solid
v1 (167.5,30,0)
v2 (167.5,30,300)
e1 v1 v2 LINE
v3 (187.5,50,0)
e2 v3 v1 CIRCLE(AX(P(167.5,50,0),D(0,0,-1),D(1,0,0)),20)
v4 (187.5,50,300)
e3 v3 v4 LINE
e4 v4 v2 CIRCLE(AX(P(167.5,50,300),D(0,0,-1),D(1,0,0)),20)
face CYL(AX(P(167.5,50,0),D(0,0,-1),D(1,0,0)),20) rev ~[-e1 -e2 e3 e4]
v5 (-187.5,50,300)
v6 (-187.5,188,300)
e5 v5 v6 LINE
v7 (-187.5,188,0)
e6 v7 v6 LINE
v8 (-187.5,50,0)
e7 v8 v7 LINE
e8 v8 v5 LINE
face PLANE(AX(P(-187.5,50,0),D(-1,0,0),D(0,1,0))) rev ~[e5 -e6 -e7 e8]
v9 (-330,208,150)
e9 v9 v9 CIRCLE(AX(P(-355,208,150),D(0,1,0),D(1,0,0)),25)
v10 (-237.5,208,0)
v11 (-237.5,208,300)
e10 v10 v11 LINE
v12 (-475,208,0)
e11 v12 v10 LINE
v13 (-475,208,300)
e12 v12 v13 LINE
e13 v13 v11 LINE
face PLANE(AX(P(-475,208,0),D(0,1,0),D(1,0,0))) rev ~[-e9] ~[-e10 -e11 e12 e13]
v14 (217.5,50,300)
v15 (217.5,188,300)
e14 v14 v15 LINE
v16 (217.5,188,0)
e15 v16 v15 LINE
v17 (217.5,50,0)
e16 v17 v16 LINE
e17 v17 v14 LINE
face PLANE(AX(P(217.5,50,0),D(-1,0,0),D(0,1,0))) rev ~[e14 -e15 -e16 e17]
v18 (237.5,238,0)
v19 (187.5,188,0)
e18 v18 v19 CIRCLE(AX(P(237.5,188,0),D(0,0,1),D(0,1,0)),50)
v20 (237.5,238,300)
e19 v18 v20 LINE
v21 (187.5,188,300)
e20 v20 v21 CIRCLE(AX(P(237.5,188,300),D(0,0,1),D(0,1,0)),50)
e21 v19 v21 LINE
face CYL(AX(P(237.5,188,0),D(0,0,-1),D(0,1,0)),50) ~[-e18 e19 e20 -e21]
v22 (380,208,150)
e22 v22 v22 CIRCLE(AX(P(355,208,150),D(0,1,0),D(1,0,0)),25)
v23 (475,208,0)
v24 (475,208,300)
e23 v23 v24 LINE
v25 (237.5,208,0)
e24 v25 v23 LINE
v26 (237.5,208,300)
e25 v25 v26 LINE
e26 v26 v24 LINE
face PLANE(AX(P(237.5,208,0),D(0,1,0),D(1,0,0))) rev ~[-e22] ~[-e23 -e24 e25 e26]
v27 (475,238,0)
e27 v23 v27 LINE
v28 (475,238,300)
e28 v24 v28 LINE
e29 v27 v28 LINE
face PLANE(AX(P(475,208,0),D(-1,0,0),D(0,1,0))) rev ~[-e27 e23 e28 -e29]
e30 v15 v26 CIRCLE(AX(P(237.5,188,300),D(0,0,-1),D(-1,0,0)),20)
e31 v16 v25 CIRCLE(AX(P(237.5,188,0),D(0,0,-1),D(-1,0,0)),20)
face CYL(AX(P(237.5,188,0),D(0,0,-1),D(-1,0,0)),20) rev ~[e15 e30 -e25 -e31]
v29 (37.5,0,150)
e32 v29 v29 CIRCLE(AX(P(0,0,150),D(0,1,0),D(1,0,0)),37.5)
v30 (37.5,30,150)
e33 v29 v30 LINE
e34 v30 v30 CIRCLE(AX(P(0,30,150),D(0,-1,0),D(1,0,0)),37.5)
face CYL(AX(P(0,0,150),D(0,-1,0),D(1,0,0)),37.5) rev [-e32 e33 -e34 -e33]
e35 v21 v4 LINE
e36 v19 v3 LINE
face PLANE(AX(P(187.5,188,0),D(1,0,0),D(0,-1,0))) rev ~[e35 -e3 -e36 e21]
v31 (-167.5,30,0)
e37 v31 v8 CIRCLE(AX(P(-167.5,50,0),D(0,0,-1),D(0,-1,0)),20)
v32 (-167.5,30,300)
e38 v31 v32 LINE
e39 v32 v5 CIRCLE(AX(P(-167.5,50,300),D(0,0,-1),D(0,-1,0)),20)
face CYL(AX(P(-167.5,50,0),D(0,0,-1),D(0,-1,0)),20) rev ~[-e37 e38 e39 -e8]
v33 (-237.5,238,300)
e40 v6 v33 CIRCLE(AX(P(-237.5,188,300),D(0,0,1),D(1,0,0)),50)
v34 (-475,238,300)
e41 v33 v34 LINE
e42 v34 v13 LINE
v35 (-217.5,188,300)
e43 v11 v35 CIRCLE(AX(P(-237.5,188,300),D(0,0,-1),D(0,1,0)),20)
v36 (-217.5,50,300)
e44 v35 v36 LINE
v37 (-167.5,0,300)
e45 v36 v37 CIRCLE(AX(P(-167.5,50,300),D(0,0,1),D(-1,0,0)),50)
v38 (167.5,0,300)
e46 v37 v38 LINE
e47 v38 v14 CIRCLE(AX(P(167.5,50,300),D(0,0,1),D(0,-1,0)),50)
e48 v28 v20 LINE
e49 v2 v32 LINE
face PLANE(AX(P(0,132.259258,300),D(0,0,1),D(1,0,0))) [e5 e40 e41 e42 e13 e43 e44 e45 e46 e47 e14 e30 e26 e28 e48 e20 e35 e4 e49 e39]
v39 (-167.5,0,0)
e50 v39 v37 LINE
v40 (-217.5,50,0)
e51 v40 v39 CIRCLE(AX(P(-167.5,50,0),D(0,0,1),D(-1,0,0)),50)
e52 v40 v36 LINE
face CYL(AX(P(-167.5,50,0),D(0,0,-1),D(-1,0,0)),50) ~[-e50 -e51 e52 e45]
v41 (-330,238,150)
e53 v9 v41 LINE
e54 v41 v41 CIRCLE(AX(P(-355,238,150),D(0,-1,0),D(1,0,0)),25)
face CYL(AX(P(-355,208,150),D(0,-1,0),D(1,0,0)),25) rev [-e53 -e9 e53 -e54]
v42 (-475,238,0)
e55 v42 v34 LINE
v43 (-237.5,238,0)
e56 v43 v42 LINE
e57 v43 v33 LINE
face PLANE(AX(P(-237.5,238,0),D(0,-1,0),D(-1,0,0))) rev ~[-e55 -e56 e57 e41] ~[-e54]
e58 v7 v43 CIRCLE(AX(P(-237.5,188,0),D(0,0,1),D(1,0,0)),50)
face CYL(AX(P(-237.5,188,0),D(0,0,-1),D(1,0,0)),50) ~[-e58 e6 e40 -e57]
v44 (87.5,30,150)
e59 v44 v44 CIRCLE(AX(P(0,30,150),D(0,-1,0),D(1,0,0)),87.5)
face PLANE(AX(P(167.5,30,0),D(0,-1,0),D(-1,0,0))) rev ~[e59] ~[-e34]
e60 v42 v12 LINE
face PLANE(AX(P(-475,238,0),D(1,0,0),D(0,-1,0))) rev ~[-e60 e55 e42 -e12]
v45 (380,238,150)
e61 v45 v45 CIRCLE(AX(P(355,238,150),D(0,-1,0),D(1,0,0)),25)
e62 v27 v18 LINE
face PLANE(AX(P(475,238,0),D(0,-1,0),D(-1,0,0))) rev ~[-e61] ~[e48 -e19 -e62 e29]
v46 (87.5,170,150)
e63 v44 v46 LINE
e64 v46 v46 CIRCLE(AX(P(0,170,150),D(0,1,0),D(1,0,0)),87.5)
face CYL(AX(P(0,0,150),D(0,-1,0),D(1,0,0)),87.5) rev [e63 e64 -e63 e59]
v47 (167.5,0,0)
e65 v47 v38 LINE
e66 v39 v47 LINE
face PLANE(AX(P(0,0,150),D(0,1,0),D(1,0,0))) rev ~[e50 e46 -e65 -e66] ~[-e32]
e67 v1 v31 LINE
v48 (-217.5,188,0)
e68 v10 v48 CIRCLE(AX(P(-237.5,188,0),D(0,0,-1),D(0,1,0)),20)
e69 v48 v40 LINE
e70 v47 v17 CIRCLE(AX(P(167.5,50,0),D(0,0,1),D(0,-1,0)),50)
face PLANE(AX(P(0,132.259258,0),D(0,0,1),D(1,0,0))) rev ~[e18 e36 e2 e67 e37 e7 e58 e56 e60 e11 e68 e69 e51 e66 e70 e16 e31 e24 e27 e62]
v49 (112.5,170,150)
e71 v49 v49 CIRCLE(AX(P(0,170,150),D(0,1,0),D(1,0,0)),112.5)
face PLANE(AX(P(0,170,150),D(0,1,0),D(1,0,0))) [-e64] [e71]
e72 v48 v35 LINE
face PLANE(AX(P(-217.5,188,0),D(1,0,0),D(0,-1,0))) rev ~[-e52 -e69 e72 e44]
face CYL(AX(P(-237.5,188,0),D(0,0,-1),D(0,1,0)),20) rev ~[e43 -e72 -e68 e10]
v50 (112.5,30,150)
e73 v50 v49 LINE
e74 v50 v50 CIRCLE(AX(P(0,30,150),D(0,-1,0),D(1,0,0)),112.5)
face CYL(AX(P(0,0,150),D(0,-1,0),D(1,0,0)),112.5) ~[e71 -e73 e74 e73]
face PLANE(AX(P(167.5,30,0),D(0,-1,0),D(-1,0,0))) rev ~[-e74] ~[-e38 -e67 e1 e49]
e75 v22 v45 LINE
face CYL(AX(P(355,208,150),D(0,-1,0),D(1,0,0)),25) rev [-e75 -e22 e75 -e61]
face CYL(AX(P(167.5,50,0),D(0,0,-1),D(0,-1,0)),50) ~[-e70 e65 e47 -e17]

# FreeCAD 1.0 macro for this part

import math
import FreeCAD as App
import Part
import Sketcher

V = App.Vector
Q = App.Units.Quantity

doc = App.newDocument("Part")
body = doc.addObject("PartDesign::Body", "Body")

sketch1 = body.newObject("Sketcher::SketchObject", "Sketch")
sketch1.AttachmentSupport = (doc.getObject("XY_Plane"), [""])
sketch1.MapMode = "FlatFace"
sketch1.addGeometry(Part.LineSegment(V(-167.5, 0, 0), V(167.5, 0, 0)), False)
sketch1.addGeometry(Part.ArcOfCircle(Part.Circle(V(167.5, 50, 0), V(0, 0, 1), 50), math.radians(-90), math.radians(0)), False)
sketch1.addGeometry(Part.LineSegment(V(217.5, 50, 0), V(217.5, 188, 0)), False)
sketch1.addGeometry(Part.ArcOfCircle(Part.Circle(V(237.5, 188, 0), V(0, 0, 1), 20), math.radians(90), math.radians(180)), False)
sketch1.addGeometry(Part.LineSegment(V(237.5, 208, 0), V(475, 208, 0)), False)
sketch1.addGeometry(Part.LineSegment(V(475, 208, 0), V(475, 238, 0)), False)
sketch1.addGeometry(Part.LineSegment(V(475, 238, 0), V(237.5, 238, 0)), False)
sketch1.addGeometry(Part.ArcOfCircle(Part.Circle(V(237.5, 188, 0), V(0, 0, 1), 50), math.radians(90), math.radians(180)), False)
sketch1.addGeometry(Part.LineSegment(V(187.5, 188, 0), V(187.5, 50, 0)), False)
sketch1.addGeometry(Part.ArcOfCircle(Part.Circle(V(167.5, 50, 0), V(0, 0, 1), 20), math.radians(-90), math.radians(0)), False)
sketch1.addGeometry(Part.LineSegment(V(167.5, 30, 0), V(-167.5, 30, 0)), False)
sketch1.addGeometry(Part.ArcOfCircle(Part.Circle(V(-167.5, 50, 0), V(0, 0, 1), 20), math.radians(180), math.radians(270)), False)
sketch1.addGeometry(Part.LineSegment(V(-187.5, 50, 0), V(-187.5, 188, 0)), False)
sketch1.addGeometry(Part.ArcOfCircle(Part.Circle(V(-237.5, 188, 0), V(0, 0, 1), 50), math.radians(0), math.radians(90)), False)
sketch1.addGeometry(Part.LineSegment(V(-237.5, 238, 0), V(-475, 238, 0)), False)
sketch1.addGeometry(Part.LineSegment(V(-475, 238, 0), V(-475, 208, 0)), False)
sketch1.addGeometry(Part.LineSegment(V(-475, 208, 0), V(-237.5, 208, 0)), False)
sketch1.addGeometry(Part.ArcOfCircle(Part.Circle(V(-237.5, 188, 0), V(0, 0, 1), 20), math.radians(0), math.radians(90)), False)
sketch1.addGeometry(Part.LineSegment(V(-217.5, 188, 0), V(-217.5, 50, 0)), False)
sketch1.addGeometry(Part.ArcOfCircle(Part.Circle(V(-167.5, 50, 0), V(0, 0, 1), 50), math.radians(-180), math.radians(-90)), False)
sketch1.addConstraint(Sketcher.Constraint("Tangent", 0, 2, 1, 1))
sketch1.addConstraint(Sketcher.Constraint("Tangent", 1, 2, 2, 1))
sketch1.addConstraint(Sketcher.Constraint("Tangent", 2, 2, 3, 2))
sketch1.addConstraint(Sketcher.Constraint("Tangent", 3, 1, 4, 1))
sketch1.addConstraint(Sketcher.Constraint("Coincident", 4, 2, 5, 1))
sketch1.addConstraint(Sketcher.Constraint("Coincident", 5, 2, 6, 1))
sketch1.addConstraint(Sketcher.Constraint("Tangent", 6, 2, 7, 1))
sketch1.addConstraint(Sketcher.Constraint("Tangent", 7, 2, 8, 1))
sketch1.addConstraint(Sketcher.Constraint("Tangent", 8, 2, 9, 2))
sketch1.addConstraint(Sketcher.Constraint("Tangent", 9, 1, 10, 1))
sketch1.addConstraint(Sketcher.Constraint("Tangent", 10, 2, 11, 2))
sketch1.addConstraint(Sketcher.Constraint("Tangent", 11, 1, 12, 1))
sketch1.addConstraint(Sketcher.Constraint("Tangent", 12, 2, 13, 1))
sketch1.addConstraint(Sketcher.Constraint("Tangent", 13, 2, 14, 1))
sketch1.addConstraint(Sketcher.Constraint("Coincident", 14, 2, 15, 1))
sketch1.addConstraint(Sketcher.Constraint("Coincident", 15, 2, 16, 1))
sketch1.addConstraint(Sketcher.Constraint("Tangent", 16, 2, 17, 2))
sketch1.addConstraint(Sketcher.Constraint("Tangent", 17, 1, 18, 1))
sketch1.addConstraint(Sketcher.Constraint("Tangent", 18, 2, 19, 1))
sketch1.addConstraint(Sketcher.Constraint("Tangent", 19, 2, 0, 1))
sketch1.addConstraint(Sketcher.Constraint("Horizontal", 0))
sketch1.addConstraint(Sketcher.Constraint("Vertical", 2))
sketch1.addConstraint(Sketcher.Constraint("Horizontal", 4))
sketch1.addConstraint(Sketcher.Constraint("Vertical", 5))
sketch1.addConstraint(Sketcher.Constraint("Horizontal", 6))
sketch1.addConstraint(Sketcher.Constraint("Vertical", 8))
sketch1.addConstraint(Sketcher.Constraint("Horizontal", 10))
sketch1.addConstraint(Sketcher.Constraint("Vertical", 12))
sketch1.addConstraint(Sketcher.Constraint("Horizontal", 14))
sketch1.addConstraint(Sketcher.Constraint("Vertical", 15))
sketch1.addConstraint(Sketcher.Constraint("Horizontal", 16))
sketch1.addConstraint(Sketcher.Constraint("Vertical", 18))
sketch1.addConstraint(Sketcher.Constraint("Coincident", 7, 3, 3, 3))
sketch1.addConstraint(Sketcher.Constraint("Coincident", 9, 3, 1, 3))
sketch1.addConstraint(Sketcher.Constraint("Coincident", 17, 3, 13, 3))
sketch1.addConstraint(Sketcher.Constraint("Coincident", 19, 3, 11, 3))
sketch1.addConstraint(Sketcher.Constraint("Equal", 1, 7))
sketch1.addConstraint(Sketcher.Constraint("Equal", 9, 11))
sketch1.addConstraint(Sketcher.Constraint("Equal", 7, 13))
sketch1.addConstraint(Sketcher.Constraint("Symmetric", 0, 2, 19, 2, -1, 1))
sketch1.addConstraint(Sketcher.Constraint("Symmetric", 5, 2, 14, 2, -2))
sketch1.addConstraint(Sketcher.Constraint("Radius", 1, Q("50 mm")))
sketch1.addConstraint(Sketcher.Constraint("Radius", 3, Q("20 mm")))
sketch1.addConstraint(Sketcher.Constraint("DistanceX", 0, 1, 0, 2, Q("335 mm")))
sketch1.addConstraint(Sketcher.Constraint("DistanceY", 2, 1, 2, 2, Q("138 mm")))
sketch1.addConstraint(Sketcher.Constraint("DistanceX", 4, 1, 4, 2, Q("237.5 mm")))
pad1 = body.newObject("PartDesign::Pad", "Pad")
pad1.Profile = sketch1
pad1.Length = 300

sketch2 = body.newObject("Sketcher::SketchObject", "Sketch001")
sketch2.AttachmentSupport = (doc.getObject("XZ_Plane"), [""])
sketch2.MapMode = "FlatFace"
sketch2.addGeometry(Part.Circle(V(0, 150, 0), V(0, 0, 1), 112.5), False)
sketch2.addGeometry(Part.Circle(V(0, 150, 0), V(0, 0, 1), 87.5), False)
sketch2.addConstraint(Sketcher.Constraint("Coincident", 1, 3, 0, 3))
sketch2.addConstraint(Sketcher.Constraint("PointOnObject", 0, 3, -2))
sketch2.addConstraint(Sketcher.Constraint("Diameter", 0, Q("225 mm")))
sketch2.addConstraint(Sketcher.Constraint("Diameter", 1, Q("175 mm")))
sketch2.addConstraint(Sketcher.Constraint("DistanceY", -1, 1, 0, 3, Q("150 mm")))
pad2 = body.newObject("PartDesign::Pad", "Pad001")
pad2.Profile = sketch2
pad2.Length = 170
pad2.Reversed = True

sketch3 = body.newObject("Sketcher::SketchObject", "Sketch002")
sketch3.AttachmentSupport = (doc.getObject("XZ_Plane"), [""])
sketch3.MapMode = "FlatFace"
sketch3.addGeometry(Part.Circle(V(0, 150, 0), V(0, 0, 1), 37.5), False)
sketch3.addConstraint(Sketcher.Constraint("PointOnObject", 0, 3, -2))
sketch3.addConstraint(Sketcher.Constraint("Diameter", 0, Q("75 mm")))
sketch3.addConstraint(Sketcher.Constraint("DistanceY", -1, 1, 0, 3, Q("150 mm")))
pocket1 = body.newObject("PartDesign::Pocket", "Pocket")
pocket1.Profile = sketch3
pocket1.Type = "ThroughAll"

sketch4 = body.newObject("Sketcher::SketchObject", "Sketch003")
sketch4.AttachmentSupport = (doc.getObject("XZ_Plane"), [""])
sketch4.MapMode = "FlatFace"
sketch4.AttachmentOffset = App.Placement(V(0, 0, -208), App.Rotation())
sketch4.addGeometry(Part.Circle(V(-355, 150, 0), V(0, 0, 1), 25), False)
sketch4.addGeometry(Part.Circle(V(355, 150, 0), V(0, 0, 1), 25), False)
sketch4.addConstraint(Sketcher.Constraint("Equal", 0, 1))
sketch4.addConstraint(Sketcher.Constraint("Symmetric", 0, 3, 1, 3, -2))
sketch4.addConstraint(Sketcher.Constraint("Diameter", 0, Q("50 mm")))
sketch4.addConstraint(Sketcher.Constraint("DistanceX", 0, 3, -1, 1, Q("355 mm")))
sketch4.addConstraint(Sketcher.Constraint("DistanceY", -1, 1, 0, 3, Q("150 mm")))
pocket2 = body.newObject("PartDesign::Pocket", "Pocket001")
pocket2.Profile = sketch4
pocket2.Type = "ThroughAll"

doc.recompute()
